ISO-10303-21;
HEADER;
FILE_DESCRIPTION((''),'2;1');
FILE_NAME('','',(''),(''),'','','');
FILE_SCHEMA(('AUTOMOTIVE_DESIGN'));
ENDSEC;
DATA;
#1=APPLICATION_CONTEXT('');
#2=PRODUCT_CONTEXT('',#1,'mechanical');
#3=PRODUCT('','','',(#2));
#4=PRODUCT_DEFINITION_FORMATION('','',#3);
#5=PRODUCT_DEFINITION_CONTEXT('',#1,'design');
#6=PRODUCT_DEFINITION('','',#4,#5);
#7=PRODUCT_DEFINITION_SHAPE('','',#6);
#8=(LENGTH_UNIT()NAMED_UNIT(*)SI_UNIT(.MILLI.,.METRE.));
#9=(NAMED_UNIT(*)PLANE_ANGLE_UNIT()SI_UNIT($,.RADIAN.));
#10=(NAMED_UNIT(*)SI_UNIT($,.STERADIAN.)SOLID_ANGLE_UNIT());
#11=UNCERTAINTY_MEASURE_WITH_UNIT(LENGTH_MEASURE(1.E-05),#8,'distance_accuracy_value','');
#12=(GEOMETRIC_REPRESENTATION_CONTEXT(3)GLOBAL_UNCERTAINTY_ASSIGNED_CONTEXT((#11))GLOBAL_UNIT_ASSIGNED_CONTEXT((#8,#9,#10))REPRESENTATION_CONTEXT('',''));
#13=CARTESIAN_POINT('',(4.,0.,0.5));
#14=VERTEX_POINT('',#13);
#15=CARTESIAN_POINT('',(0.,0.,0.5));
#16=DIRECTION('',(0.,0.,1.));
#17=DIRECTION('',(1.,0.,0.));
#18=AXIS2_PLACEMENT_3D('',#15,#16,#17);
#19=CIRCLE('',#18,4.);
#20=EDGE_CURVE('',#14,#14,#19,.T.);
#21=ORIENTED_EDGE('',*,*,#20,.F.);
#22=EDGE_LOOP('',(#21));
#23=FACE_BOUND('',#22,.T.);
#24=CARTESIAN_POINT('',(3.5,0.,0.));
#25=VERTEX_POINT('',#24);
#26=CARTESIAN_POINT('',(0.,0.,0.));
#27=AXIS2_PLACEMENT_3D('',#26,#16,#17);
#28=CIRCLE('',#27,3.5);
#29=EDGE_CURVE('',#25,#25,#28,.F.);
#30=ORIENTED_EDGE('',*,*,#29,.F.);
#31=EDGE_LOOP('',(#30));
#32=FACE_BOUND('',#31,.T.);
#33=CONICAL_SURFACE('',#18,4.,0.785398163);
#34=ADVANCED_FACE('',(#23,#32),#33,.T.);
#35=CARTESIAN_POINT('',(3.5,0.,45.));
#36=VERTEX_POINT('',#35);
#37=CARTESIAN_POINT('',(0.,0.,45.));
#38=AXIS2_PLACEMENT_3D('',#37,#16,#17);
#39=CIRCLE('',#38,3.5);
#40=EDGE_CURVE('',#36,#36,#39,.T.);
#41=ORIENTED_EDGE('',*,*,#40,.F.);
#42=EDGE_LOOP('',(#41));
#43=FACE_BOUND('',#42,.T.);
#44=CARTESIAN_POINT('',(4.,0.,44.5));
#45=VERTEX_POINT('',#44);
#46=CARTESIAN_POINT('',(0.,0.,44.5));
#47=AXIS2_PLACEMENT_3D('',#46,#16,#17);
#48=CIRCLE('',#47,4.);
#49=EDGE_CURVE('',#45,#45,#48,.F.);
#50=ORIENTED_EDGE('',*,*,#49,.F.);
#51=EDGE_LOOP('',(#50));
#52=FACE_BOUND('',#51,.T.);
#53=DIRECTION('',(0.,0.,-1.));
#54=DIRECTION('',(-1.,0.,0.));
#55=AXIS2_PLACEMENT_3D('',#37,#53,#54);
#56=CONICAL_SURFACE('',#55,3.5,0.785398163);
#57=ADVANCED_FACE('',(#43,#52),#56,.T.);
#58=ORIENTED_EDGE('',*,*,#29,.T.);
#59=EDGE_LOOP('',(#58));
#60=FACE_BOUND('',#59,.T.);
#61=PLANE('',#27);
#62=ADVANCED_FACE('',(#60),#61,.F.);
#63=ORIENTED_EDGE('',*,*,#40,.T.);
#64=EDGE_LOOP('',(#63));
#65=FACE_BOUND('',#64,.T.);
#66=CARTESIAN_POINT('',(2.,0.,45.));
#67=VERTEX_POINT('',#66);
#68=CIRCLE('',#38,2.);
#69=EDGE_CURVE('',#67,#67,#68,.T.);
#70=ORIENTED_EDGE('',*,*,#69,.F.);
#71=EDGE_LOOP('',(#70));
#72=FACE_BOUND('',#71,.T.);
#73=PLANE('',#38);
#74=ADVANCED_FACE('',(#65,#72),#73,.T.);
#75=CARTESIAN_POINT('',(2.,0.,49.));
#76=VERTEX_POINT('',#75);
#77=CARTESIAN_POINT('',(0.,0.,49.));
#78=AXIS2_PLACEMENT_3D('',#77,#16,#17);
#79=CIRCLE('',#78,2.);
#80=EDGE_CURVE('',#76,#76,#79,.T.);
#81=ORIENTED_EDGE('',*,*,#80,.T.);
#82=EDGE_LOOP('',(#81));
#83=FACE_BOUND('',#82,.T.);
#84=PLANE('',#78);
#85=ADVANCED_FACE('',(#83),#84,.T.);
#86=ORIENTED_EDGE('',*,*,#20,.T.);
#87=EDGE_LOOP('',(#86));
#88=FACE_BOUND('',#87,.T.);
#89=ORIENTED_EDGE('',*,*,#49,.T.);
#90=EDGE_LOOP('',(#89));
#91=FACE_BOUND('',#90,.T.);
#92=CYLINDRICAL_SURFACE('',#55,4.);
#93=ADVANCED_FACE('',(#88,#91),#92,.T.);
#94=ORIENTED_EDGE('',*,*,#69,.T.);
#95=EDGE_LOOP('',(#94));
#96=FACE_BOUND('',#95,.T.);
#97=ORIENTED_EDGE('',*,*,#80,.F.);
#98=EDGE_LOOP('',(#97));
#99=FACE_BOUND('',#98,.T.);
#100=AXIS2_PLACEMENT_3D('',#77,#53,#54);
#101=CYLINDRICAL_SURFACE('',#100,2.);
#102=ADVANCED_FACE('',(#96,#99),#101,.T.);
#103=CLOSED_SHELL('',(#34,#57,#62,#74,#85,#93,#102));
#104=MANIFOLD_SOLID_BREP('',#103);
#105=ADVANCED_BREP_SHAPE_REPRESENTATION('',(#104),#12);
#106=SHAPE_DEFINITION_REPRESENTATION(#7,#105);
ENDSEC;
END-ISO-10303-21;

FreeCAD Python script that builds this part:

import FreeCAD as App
import Part
import Sketcher

V = App.Vector
Q = App.Units.Quantity


def edges_at(feature, points):
    """Names of the edges that pass closest to the given points."""
    edges = feature.Shape.Edges
    near = lambda p: min(range(len(edges)), key=lambda i: edges[i].distToShape(Part.Vertex(*p))[0])
    return sorted({f"Edge{near(p) + 1}" for p in points})

doc = App.newDocument("Part")
body = doc.addObject("PartDesign::Body", "Body")

# Sketch on XY plane
sketch1 = body.newObject("Sketcher::SketchObject", "Sketch")
sketch1.AttachmentSupport = (doc.getObject("XY_Plane"), [""])
sketch1.MapMode = "FlatFace"
sketch1.addGeometry(Part.Circle(V(0, 0, 0), V(0, 0, 1), 4), False)
sketch1.addConstraint([
    Sketcher.Constraint("Coincident", 0, 3, -1, 1),
    Sketcher.Constraint("Diameter", 0, Q("8 mm")),
])
pad1 = body.newObject("PartDesign::Pad", "Pad")
pad1.Profile = sketch1
pad1.Length = 45
doc.recompute()

chamfer = body.newObject("PartDesign::Chamfer", "Chamfer")
chamfer.Base = (pad1, edges_at(pad1, [(-4, 0, 0), (-4, 0, 45)]))
chamfer.Size = 0.5

# Sketch on XY plane
sketch2 = body.newObject("Sketcher::SketchObject", "Sketch001")
sketch2.AttachmentSupport = (doc.getObject("XY_Plane"), [""])
sketch2.MapMode = "FlatFace"
sketch2.AttachmentOffset = App.Placement(V(0, 0, 45), App.Rotation())
sketch2.addGeometry(Part.Circle(V(0, 0, 0), V(0, 0, 1), 2), False)
sketch2.addConstraint([
    Sketcher.Constraint("Coincident", 0, 3, -1, 1),
    Sketcher.Constraint("Diameter", 0, Q("4 mm")),
])
pad2 = body.newObject("PartDesign::Pad", "Pad001")
pad2.Profile = sketch2
pad2.Length = 4

doc.recompute()
